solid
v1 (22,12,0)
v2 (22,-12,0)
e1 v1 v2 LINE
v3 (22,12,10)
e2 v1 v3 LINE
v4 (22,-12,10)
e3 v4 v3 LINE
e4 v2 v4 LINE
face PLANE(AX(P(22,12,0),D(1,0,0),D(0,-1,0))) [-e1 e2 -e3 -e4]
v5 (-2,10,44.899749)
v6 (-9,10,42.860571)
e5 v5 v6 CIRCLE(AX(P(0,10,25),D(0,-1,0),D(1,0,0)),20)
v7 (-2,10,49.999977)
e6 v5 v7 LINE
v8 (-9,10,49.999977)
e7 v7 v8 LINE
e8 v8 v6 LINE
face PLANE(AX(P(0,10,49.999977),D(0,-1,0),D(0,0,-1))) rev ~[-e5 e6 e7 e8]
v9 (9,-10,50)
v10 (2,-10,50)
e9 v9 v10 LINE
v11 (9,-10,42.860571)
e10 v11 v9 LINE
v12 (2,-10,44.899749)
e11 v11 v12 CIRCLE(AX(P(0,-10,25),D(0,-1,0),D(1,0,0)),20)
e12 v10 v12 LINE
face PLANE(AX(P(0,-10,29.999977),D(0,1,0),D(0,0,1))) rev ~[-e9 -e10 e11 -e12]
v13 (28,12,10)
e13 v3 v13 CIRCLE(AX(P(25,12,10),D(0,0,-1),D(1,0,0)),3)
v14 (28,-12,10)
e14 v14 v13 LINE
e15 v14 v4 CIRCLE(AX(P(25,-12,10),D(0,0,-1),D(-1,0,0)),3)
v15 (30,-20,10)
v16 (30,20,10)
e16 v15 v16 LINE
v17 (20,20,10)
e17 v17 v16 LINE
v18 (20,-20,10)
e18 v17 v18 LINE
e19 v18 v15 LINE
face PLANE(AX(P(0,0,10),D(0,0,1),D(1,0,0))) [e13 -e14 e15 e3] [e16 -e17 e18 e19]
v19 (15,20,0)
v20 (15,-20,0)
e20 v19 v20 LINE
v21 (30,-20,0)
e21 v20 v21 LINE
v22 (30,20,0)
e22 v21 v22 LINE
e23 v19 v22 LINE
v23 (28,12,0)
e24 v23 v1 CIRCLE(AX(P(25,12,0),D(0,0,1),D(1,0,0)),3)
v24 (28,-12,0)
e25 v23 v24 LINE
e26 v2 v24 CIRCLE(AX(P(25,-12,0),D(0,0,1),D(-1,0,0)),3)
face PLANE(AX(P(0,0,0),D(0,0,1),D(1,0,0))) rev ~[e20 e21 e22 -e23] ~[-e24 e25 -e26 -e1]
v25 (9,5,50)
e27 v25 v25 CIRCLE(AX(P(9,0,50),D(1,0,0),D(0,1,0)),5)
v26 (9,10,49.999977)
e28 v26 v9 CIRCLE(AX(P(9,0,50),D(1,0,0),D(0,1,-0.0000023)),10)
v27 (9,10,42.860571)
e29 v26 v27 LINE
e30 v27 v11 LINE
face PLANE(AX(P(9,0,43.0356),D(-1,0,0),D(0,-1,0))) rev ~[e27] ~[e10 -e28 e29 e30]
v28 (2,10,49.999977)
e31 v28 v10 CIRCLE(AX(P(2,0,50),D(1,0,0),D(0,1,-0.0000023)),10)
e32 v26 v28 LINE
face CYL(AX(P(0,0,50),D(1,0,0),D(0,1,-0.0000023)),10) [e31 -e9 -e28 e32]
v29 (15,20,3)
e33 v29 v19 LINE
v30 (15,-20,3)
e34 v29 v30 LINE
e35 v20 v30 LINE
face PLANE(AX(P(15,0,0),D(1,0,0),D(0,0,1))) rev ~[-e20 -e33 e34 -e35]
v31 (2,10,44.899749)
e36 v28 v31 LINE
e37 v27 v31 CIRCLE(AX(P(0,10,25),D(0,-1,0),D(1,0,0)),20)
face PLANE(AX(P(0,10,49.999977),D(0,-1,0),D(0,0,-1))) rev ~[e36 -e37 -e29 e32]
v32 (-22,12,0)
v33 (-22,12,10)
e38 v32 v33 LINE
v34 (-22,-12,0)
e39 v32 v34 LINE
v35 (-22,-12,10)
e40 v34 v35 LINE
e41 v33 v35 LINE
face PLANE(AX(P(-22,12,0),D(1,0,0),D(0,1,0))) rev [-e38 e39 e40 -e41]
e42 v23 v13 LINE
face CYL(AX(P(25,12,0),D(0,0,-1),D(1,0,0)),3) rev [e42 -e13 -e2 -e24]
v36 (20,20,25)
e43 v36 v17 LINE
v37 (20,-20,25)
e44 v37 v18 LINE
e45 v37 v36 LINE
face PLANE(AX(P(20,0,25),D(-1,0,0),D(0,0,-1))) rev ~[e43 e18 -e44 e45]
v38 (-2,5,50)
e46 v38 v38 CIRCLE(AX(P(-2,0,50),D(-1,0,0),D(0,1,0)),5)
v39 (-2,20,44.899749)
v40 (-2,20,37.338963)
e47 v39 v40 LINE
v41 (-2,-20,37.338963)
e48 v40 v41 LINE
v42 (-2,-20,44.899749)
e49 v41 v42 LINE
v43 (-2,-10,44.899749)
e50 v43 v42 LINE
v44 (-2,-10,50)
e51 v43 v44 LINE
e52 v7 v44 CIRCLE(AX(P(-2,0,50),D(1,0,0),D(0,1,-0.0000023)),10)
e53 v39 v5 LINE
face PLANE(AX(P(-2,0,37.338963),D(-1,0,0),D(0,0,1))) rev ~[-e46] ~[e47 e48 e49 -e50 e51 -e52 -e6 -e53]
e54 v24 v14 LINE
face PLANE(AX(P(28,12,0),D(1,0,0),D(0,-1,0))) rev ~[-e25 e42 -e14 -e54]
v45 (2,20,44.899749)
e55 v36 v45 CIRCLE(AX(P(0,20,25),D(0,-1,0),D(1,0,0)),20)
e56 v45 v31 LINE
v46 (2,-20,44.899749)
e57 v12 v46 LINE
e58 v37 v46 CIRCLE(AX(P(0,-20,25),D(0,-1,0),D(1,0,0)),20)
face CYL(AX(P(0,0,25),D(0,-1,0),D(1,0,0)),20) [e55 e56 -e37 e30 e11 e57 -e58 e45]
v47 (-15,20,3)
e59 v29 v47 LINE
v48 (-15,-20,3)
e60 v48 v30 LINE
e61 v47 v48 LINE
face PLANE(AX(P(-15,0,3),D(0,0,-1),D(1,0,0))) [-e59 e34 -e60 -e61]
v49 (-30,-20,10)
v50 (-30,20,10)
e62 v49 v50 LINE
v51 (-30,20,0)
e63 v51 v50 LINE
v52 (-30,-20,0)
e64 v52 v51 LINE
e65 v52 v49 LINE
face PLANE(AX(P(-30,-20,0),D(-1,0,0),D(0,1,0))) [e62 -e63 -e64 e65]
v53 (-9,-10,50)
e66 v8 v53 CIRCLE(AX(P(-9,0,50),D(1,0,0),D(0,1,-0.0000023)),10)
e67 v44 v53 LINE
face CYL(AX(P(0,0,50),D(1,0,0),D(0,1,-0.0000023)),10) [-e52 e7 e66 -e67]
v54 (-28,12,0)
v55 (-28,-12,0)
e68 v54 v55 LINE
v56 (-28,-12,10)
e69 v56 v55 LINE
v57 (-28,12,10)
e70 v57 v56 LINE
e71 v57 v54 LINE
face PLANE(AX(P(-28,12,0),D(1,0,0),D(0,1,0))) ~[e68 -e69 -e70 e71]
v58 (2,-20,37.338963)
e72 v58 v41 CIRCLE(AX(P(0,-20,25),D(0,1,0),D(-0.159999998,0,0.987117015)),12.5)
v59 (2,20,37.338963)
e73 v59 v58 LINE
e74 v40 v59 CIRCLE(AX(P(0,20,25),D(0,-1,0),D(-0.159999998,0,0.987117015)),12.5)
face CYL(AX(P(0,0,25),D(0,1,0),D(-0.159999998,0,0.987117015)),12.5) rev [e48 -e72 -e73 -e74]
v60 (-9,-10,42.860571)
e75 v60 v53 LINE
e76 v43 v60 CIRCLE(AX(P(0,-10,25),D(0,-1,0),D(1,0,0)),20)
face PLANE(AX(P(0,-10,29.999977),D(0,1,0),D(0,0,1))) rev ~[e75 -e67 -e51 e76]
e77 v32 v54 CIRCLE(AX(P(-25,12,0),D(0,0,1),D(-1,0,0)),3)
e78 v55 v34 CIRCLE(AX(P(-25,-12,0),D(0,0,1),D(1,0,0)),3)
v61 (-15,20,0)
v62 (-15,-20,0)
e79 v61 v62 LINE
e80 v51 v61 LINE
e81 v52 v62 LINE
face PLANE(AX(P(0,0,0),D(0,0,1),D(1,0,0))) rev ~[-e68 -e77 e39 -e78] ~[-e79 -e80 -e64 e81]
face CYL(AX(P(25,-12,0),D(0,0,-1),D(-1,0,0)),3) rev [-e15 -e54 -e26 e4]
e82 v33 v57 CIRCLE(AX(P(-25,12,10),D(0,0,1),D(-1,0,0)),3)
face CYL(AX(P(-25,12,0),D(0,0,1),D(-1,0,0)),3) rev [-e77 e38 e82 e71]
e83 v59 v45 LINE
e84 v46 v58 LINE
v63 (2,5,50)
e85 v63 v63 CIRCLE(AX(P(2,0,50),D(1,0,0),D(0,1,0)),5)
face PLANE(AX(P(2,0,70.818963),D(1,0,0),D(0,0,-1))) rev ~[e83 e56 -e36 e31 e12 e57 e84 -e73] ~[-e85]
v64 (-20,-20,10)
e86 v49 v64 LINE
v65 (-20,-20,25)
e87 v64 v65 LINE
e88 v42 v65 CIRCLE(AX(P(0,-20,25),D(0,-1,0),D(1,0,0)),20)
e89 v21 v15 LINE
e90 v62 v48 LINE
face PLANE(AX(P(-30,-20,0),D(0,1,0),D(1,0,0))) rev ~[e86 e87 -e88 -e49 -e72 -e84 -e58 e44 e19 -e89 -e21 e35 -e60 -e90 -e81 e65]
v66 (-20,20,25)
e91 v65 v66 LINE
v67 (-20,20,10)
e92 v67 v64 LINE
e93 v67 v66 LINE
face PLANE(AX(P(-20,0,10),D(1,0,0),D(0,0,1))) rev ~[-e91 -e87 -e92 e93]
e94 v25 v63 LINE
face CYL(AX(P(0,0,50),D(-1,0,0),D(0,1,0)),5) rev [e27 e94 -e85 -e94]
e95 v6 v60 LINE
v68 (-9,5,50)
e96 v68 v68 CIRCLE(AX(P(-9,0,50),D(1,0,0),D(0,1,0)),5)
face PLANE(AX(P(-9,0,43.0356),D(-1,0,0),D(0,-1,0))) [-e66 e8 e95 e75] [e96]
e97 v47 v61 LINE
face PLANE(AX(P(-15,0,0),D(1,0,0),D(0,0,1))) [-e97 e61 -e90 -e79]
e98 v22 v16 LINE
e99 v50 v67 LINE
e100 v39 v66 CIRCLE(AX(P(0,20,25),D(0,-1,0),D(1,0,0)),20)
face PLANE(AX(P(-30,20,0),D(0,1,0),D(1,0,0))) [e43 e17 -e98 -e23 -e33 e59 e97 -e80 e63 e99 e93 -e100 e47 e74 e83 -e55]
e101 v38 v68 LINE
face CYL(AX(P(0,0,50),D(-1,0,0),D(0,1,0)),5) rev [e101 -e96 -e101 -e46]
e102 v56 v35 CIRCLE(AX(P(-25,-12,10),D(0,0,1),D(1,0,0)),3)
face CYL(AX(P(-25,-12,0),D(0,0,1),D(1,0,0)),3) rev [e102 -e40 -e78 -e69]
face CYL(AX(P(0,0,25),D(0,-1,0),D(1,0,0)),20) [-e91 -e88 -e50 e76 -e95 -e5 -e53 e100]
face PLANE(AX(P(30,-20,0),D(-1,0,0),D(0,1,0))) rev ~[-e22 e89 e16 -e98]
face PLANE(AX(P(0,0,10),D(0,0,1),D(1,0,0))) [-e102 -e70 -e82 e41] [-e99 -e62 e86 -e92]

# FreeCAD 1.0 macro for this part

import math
import FreeCAD as App
import Part
import Sketcher

doc = App.newDocument("Part")
body = doc.addObject("PartDesign::Body", "Body")

# Sketch on XY plane
sketch1 = body.newObject("Sketcher::SketchObject", "Sketch")
sketch1.AttachmentSupport = (doc.getObject("XY_Plane"), [""])
sketch1.MapMode = "FlatFace"
sketch1.addGeometry([
    Part.LineSegment(App.Vector(-30, 20, 0), App.Vector(-30, -20, 0)),
    Part.LineSegment(App.Vector(-30, -20, 0), App.Vector(30, -20, 0)),
    Part.LineSegment(App.Vector(30, -20, 0), App.Vector(30, 20, 0)),
    Part.LineSegment(App.Vector(30, 20, 0), App.Vector(-30, 20, 0)),
], False)
sketch1.addConstraint([
    Sketcher.Constraint("Coincident", 0, 2, 1, 1),
    Sketcher.Constraint("Coincident", 1, 2, 2, 1),
    Sketcher.Constraint("Coincident", 2, 2, 3, 1),
    Sketcher.Constraint("Coincident", 3, 2, 0, 1),
    Sketcher.Constraint("Vertical", 0),
    Sketcher.Constraint("Horizontal", 1),
    Sketcher.Constraint("Vertical", 2),
    Sketcher.Constraint("Horizontal", 3),
    Sketcher.Constraint("Symmetric", 0, 2, 2, 2, -1, 1),
    Sketcher.Constraint("DistanceX", 1, 1, 1, 2, 60.0),
    Sketcher.Constraint("DistanceY", 0, 2, 0, 1, 40.0),
])
pad1 = body.newObject("PartDesign::Pad", "Pad")
pad1.Profile = sketch1
pad1.Length = 10

# Sketch on XZ plane
sketch2 = body.newObject("Sketcher::SketchObject", "Sketch001")
sketch2.AttachmentSupport = (doc.getObject("XZ_Plane"), [""])
sketch2.MapMode = "FlatFace"
sketch2.addGeometry([
    Part.LineSegment(App.Vector(-20, 25, 0), App.Vector(-20, 10, 0)),
    Part.LineSegment(App.Vector(-20, 10, 0), App.Vector(20, 10, 0)),
    Part.LineSegment(App.Vector(20, 10, 0), App.Vector(20, 25, 0)),
    Part.ArcOfCircle(Part.Circle(App.Vector(0, 25, 0), App.Vector(0, 0, 1), 20), math.radians(0), math.radians(180)),
], False)
sketch2.addConstraint([
    Sketcher.Constraint("Coincident", 0, 2, 1, 1),
    Sketcher.Constraint("Coincident", 1, 2, 2, 1),
    Sketcher.Constraint("Tangent", 2, 2, 3, 1),
    Sketcher.Constraint("Tangent", 3, 2, 0, 1),
    Sketcher.Constraint("Vertical", 0),
    Sketcher.Constraint("Horizontal", 1),
    Sketcher.Constraint("Vertical", 2),
    Sketcher.Constraint("PointOnObject", 3, 3, -2),
    Sketcher.Constraint("Radius", 3, 20.0),
    Sketcher.Constraint("DistanceY", 0, 2, 0, 1, 15.0),
    Sketcher.Constraint("DistanceY", -1, 1, 3, 3, 25.0),
])
pad2 = body.newObject("PartDesign::Pad", "Pad001")
pad2.Profile = sketch2
pad2.Length = 40
pad2.Midplane = True

# Sketch on YZ plane
sketch3 = body.newObject("Sketcher::SketchObject", "Sketch002")
sketch3.AttachmentSupport = (doc.getObject("YZ_Plane"), [""])
sketch3.MapMode = "FlatFace"
sketch3.addGeometry([
    Part.LineSegment(App.Vector(-10, 50, 0), App.Vector(-10, 29.999977, 0)),  # 0
    Part.LineSegment(App.Vector(-10, 29.999977, 0), App.Vector(10, 29.999977, 0)),  # 1
    Part.LineSegment(App.Vector(10, 29.999977, 0), App.Vector(10, 49.999977, 0)),  # 2
    Part.ArcOfCircle(Part.Circle(App.Vector(0, 50, 0), App.Vector(0, 0, 1), 10), math.radians(-0.000132), math.radians(180)),  # 3
    Part.Circle(App.Vector(0, 50, 0), App.Vector(0, 0, 1), 5),  # 4
], False)
sketch3.addConstraint([
    Sketcher.Constraint("Coincident", 0, 2, 1, 1),
    Sketcher.Constraint("Coincident", 1, 2, 2, 1),
    Sketcher.Constraint("Coincident", 2, 2, 3, 1),
    Sketcher.Constraint("Tangent", 3, 2, 0, 1),
    Sketcher.Constraint("Vertical", 0),
    Sketcher.Constraint("Horizontal", 1),
    Sketcher.Constraint("Vertical", 2),
    Sketcher.Constraint("Coincident", 4, 3, 3, 3),
    Sketcher.Constraint("PointOnObject", 3, 3, -2),
    Sketcher.Constraint("Equal", 1, 2),
    Sketcher.Constraint("Diameter", 4, 10.0),
    Sketcher.Constraint("Radius", 3, 10.0),
    Sketcher.Constraint("DistanceY", -1, 1, 3, 3, 50.0),
    Sketcher.Constraint("DistanceY", 0, 2, 0, 1, 20.000023),
])
pad3 = body.newObject("PartDesign::Pad", "Pad002")
pad3.Profile = sketch3
pad3.Length = 18
pad3.Midplane = True

# Sketch on XZ plane
sketch4 = body.newObject("Sketcher::SketchObject", "Sketch003")
sketch4.AttachmentSupport = (doc.getObject("XZ_Plane"), [""])
sketch4.MapMode = "FlatFace"
sketch4.addGeometry([
    Part.ArcOfCircle(Part.Circle(App.Vector(0, 25, 0), App.Vector(0, 0, 1), 12.5), math.radians(99.206896), math.radians(440.793104)),
    Part.LineSegment(App.Vector(2, 37.338963, 0), App.Vector(2, 70.818963, 0)),
    Part.LineSegment(App.Vector(2, 70.818963, 0), App.Vector(-2, 70.818963, 0)),
    Part.LineSegment(App.Vector(-2, 70.818963, 0), App.Vector(-2, 37.338963, 0)),
], False)
sketch4.addConstraint([
    Sketcher.Constraint("Coincident", 0, 2, 1, 1),
    Sketcher.Constraint("Coincident", 1, 2, 2, 1),
    Sketcher.Constraint("Coincident", 2, 2, 3, 1),
    Sketcher.Constraint("Coincident", 3, 2, 0, 1),
    Sketcher.Constraint("Vertical", 1),
    Sketcher.Constraint("Horizontal", 2),
    Sketcher.Constraint("Vertical", 3),
    Sketcher.Constraint("Symmetric", 0, 2, 3, 2, -2),
    Sketcher.Constraint("Radius", 0, 12.5),
    Sketcher.Constraint("DistanceX", 2, 2, 2, 1, 4.0),
    Sketcher.Constraint("DistanceY", -1, 1, 0, 3, 25.0),
    Sketcher.Constraint("DistanceY", 1, 1, 1, 2, 33.48),
])
pocket1 = body.newObject("PartDesign::Pocket", "Pocket")
pocket1.Profile = sketch4
pocket1.Type = "ThroughAll"
pocket1.Midplane = True

# Sketch on XZ plane
sketch5 = body.newObject("Sketcher::SketchObject", "Sketch004")
sketch5.AttachmentSupport = (doc.getObject("XZ_Plane"), [""])
sketch5.MapMode = "FlatFace"
sketch5.addGeometry([
    Part.LineSegment(App.Vector(-15, 3, 0), App.Vector(-15, 0, 0)),
    Part.LineSegment(App.Vector(-15, 0, 0), App.Vector(15, 0, 0)),
    Part.LineSegment(App.Vector(15, 0, 0), App.Vector(15, 3, 0)),
    Part.LineSegment(App.Vector(15, 3, 0), App.Vector(-15, 3, 0)),
], False)
sketch5.addConstraint([
    Sketcher.Constraint("Coincident", 0, 2, 1, 1),
    Sketcher.Constraint("Coincident", 1, 2, 2, 1),
    Sketcher.Constraint("Coincident", 2, 2, 3, 1),
    Sketcher.Constraint("Coincident", 3, 2, 0, 1),
    Sketcher.Constraint("Vertical", 0),
    Sketcher.Constraint("Horizontal", 1),
    Sketcher.Constraint("Vertical", 2),
    Sketcher.Constraint("Horizontal", 3),
    Sketcher.Constraint("Symmetric", 0, 2, 1, 2, -1, 1),
    Sketcher.Constraint("DistanceX", 1, 1, 1, 2, 30.0),
    Sketcher.Constraint("DistanceY", 0, 2, 0, 1, 3.0),
])
pocket2 = body.newObject("PartDesign::Pocket", "Pocket001")
pocket2.Profile = sketch5
pocket2.Type = "ThroughAll"
pocket2.Midplane = True

# Sketch on XY plane
sketch6 = body.newObject("Sketcher::SketchObject", "Sketch005")
sketch6.AttachmentSupport = (doc.getObject("XY_Plane"), [""])
sketch6.MapMode = "FlatFace"
sketch6.addGeometry([
    Part.ArcOfCircle(Part.Circle(App.Vector(25, 12, 0), App.Vector(0, 0, 1), 3), math.radians(0), math.radians(180)),
    Part.LineSegment(App.Vector(22, 12, 0), App.Vector(22, -12, 0)),
    Part.ArcOfCircle(Part.Circle(App.Vector(25, -12, 0), App.Vector(0, 0, 1), 3), math.radians(180), math.radians(360)),
    Part.LineSegment(App.Vector(28, -12, 0), App.Vector(28, 12, 0)),
], False)
sketch6.addConstraint([
    Sketcher.Constraint("Tangent", 0, 2, 1, 1),
    Sketcher.Constraint("Tangent", 1, 2, 2, 1),
    Sketcher.Constraint("Tangent", 2, 2, 3, 1),
    Sketcher.Constraint("Tangent", 3, 2, 0, 1),
    Sketcher.Constraint("Vertical", 1),
    Sketcher.Constraint("Vertical", 3),
    Sketcher.Constraint("Radius", 0, 3.0),
    Sketcher.Constraint("DistanceY", 1, 2, 1, 1, 24.0),
    Sketcher.Constraint("DistanceX", -1, 1, 0, 3, 25.0),
    Sketcher.Constraint("DistanceY", -1, 1, 0, 3, 12.0),
])
pocket3 = body.newObject("PartDesign::Pocket", "Pocket002")
pocket3.Profile = sketch6
pocket3.Type = "ThroughAll"
pocket3.Midplane = True
doc.recompute()

mirrored = body.newObject("PartDesign::Mirrored", "Mirrored")
mirrored.Originals = [pocket3]
mirrored.MirrorPlane = (doc.getObject("YZ_Plane"), [""])
body.Tip = mirrored

doc.recompute()
